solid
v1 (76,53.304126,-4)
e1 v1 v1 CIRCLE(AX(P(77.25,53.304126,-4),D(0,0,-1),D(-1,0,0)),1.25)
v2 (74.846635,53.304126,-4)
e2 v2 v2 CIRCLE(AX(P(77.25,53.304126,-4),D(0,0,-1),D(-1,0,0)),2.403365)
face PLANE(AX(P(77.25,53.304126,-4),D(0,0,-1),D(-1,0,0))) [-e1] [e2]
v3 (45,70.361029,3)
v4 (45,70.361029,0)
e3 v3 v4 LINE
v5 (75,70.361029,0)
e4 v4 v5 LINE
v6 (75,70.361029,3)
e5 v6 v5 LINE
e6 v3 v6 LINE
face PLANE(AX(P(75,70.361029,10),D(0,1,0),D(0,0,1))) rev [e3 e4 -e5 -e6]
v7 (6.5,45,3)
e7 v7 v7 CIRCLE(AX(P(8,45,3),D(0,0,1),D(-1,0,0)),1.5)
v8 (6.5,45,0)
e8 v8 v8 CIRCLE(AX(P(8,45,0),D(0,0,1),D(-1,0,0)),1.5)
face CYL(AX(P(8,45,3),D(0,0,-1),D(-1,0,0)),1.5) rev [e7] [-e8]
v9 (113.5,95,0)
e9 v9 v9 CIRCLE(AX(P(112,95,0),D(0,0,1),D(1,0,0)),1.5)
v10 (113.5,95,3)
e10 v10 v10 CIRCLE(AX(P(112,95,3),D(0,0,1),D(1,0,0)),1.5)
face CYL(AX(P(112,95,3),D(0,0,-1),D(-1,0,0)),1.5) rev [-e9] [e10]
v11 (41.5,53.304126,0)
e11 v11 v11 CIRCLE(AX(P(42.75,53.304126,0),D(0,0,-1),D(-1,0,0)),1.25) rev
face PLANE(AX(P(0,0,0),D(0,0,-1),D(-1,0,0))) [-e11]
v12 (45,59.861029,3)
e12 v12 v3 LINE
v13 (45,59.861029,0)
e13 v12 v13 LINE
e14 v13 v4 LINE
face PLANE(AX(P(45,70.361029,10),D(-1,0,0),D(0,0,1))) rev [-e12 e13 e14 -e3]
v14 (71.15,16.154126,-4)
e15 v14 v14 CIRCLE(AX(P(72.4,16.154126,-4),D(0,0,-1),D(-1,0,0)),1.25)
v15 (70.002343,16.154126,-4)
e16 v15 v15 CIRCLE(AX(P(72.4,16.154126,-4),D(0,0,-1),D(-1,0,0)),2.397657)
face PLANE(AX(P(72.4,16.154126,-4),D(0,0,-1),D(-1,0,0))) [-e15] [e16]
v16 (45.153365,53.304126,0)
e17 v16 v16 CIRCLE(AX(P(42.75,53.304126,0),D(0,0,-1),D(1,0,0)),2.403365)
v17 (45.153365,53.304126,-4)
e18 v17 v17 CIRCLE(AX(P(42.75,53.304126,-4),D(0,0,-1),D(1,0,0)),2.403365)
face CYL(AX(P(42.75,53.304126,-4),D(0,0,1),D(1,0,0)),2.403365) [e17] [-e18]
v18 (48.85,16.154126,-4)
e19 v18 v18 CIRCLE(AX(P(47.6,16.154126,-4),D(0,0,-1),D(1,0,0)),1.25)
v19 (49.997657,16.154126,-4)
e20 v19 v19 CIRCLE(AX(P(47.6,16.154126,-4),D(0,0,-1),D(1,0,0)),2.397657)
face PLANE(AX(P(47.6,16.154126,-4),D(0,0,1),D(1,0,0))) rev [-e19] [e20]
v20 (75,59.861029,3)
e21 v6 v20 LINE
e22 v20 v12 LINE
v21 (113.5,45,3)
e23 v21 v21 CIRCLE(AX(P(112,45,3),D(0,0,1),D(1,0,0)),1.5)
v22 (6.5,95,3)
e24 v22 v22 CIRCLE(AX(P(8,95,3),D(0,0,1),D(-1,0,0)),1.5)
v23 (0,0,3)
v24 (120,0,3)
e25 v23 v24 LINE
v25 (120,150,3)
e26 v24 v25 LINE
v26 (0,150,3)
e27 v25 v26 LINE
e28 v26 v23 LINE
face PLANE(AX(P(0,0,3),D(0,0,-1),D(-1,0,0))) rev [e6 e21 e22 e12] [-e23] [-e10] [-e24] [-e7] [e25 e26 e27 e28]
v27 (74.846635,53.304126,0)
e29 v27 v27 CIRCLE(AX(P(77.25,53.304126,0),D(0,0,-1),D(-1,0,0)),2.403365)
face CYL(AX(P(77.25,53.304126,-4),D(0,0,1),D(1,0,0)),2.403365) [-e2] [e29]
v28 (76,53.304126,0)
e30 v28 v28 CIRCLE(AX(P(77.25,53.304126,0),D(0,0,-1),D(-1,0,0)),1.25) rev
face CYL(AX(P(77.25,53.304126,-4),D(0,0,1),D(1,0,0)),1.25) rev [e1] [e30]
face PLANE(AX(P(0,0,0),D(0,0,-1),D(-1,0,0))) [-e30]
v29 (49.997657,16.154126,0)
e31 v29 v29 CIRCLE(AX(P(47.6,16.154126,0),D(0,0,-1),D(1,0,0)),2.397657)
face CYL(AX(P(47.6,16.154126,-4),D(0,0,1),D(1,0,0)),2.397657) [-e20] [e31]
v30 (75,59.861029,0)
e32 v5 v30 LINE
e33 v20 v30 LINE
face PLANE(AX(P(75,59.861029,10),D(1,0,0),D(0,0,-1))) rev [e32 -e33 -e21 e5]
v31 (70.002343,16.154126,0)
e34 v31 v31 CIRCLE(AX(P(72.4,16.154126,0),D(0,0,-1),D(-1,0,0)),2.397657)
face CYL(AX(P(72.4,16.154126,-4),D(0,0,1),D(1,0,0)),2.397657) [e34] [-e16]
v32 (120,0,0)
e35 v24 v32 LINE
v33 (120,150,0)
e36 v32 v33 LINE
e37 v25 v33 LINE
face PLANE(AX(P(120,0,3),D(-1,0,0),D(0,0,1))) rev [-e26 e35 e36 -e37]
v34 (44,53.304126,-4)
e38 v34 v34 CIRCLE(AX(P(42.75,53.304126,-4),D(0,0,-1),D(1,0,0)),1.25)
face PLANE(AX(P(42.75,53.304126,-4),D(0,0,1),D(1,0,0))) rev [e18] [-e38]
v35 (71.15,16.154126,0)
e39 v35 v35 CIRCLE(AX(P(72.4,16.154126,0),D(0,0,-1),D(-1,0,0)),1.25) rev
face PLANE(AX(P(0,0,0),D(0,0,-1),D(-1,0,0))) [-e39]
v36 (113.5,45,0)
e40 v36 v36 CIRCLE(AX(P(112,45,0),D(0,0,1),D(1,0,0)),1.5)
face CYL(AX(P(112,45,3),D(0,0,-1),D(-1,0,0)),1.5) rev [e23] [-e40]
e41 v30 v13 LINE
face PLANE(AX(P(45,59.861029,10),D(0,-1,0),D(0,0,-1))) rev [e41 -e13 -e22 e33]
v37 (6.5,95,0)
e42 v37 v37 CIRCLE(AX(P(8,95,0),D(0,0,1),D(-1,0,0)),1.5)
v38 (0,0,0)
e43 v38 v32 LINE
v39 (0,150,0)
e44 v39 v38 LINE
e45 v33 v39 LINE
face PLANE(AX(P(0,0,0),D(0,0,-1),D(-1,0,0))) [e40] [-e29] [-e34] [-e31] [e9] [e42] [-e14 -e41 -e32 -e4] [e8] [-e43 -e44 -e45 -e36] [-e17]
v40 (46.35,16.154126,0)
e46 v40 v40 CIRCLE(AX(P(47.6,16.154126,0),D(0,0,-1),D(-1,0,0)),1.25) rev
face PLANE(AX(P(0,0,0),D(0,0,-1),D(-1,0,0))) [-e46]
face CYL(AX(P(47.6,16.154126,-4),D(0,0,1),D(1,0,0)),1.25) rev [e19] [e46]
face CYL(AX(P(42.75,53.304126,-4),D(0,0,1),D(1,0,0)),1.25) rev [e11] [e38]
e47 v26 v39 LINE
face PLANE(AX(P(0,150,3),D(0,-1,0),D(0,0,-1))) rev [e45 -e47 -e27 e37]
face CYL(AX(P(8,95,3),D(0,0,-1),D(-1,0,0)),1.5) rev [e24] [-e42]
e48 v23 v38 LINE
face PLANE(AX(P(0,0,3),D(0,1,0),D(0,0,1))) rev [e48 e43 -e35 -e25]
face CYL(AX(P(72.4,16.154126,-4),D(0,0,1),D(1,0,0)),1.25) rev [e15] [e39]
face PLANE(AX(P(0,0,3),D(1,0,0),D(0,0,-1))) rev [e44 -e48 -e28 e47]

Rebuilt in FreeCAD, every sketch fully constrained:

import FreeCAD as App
import Part
import Sketcher
from FreeCAD import Vector
Q = App.Units.Quantity

doc = App.newDocument("Part")
body = doc.addObject("PartDesign::Body", "Body")

# Sketch on XY plane
sketch1 = body.newObject("Sketcher::SketchObject", "Sketch")
sketch1.AttachmentSupport = (doc.getObject("XY_Plane"), [""])
sketch1.MapMode = "FlatFace"
sketch1.addGeometry(Part.LineSegment(Vector(0, 150, 0), Vector(0, 0, 0)), False)
sketch1.addGeometry(Part.LineSegment(Vector(0, 0, 0), Vector(120, 0, 0)), False)
sketch1.addGeometry(Part.LineSegment(Vector(120, 0, 0), Vector(120, 150, 0)), False)
sketch1.addGeometry(Part.LineSegment(Vector(120, 150, 0), Vector(0, 150, 0)), False)
sketch1.addGeometry(Part.Circle(Vector(8, 45, 0), Vector(0, 0, 1), 1.5), False)
sketch1.addGeometry(Part.Circle(Vector(112, 45, 0), Vector(0, 0, 1), 1.5), False)
sketch1.addGeometry(Part.Circle(Vector(8, 95, 0), Vector(0, 0, 1), 1.5), False)
sketch1.addGeometry(Part.Circle(Vector(112, 95, 0), Vector(0, 0, 1), 1.5), False)
sketch1.addConstraint(Sketcher.Constraint("Coincident", 0, 2, 1, 1))
sketch1.addConstraint(Sketcher.Constraint("Coincident", 1, 2, 2, 1))
sketch1.addConstraint(Sketcher.Constraint("Coincident", 2, 2, 3, 1))
sketch1.addConstraint(Sketcher.Constraint("Coincident", 3, 2, 0, 1))
sketch1.addConstraint(Sketcher.Constraint("Vertical", 0))
sketch1.addConstraint(Sketcher.Constraint("Horizontal", 1))
sketch1.addConstraint(Sketcher.Constraint("Vertical", 2))
sketch1.addConstraint(Sketcher.Constraint("Horizontal", 3))
sketch1.addConstraint(Sketcher.Constraint("Coincident", 0, 2, -1, 1))
sketch1.addConstraint(Sketcher.Constraint("Equal", 4, 5))
sketch1.addConstraint(Sketcher.Constraint("Equal", 5, 6))
sketch1.addConstraint(Sketcher.Constraint("Equal", 6, 7))
sketch1.addConstraint(Sketcher.Constraint("Horizontal", 4, 3, 5, 3))
sketch1.addConstraint(Sketcher.Constraint("Horizontal", 6, 3, 7, 3))
sketch1.addConstraint(Sketcher.Constraint("Vertical", 4, 3, 6, 3))
sketch1.addConstraint(Sketcher.Constraint("Vertical", 5, 3, 7, 3))
sketch1.addConstraint(Sketcher.Constraint("Diameter", 4, Q("3 mm")))
sketch1.addConstraint(Sketcher.Constraint("DistanceX", 1, 1, 1, 2, Q("120 mm")))
sketch1.addConstraint(Sketcher.Constraint("DistanceY", 0, 2, 0, 1, Q("150 mm")))
sketch1.addConstraint(Sketcher.Constraint("DistanceX", -1, 1, 4, 3, Q("8 mm")))
sketch1.addConstraint(Sketcher.Constraint("DistanceY", -1, 1, 4, 3, Q("45 mm")))
sketch1.addConstraint(Sketcher.Constraint("DistanceX", -1, 1, 5, 3, Q("112 mm")))
sketch1.addConstraint(Sketcher.Constraint("DistanceY", -1, 1, 6, 3, Q("95 mm")))
pad1 = body.newObject("PartDesign::Pad", "Pad")
pad1.Profile = sketch1
pad1.Length = 3

# Sketch on XY plane
sketch2 = body.newObject("Sketcher::SketchObject", "Sketch001")
sketch2.AttachmentSupport = (doc.getObject("XY_Plane"), [""])
sketch2.MapMode = "FlatFace"
sketch2.addGeometry(Part.Circle(Vector(42.8, 53.3, 0), Vector(0, 0, 1), 2.4), False)
sketch2.addGeometry(Part.Circle(Vector(42.8, 53.3, 0), Vector(0, 0, 1), 1.2), False)
sketch2.addGeometry(Part.Circle(Vector(47.6, 16.2, 0), Vector(0, 0, 1), 2.4), False)
sketch2.addGeometry(Part.Circle(Vector(47.6, 16.2, 0), Vector(0, 0, 1), 1.2), False)
sketch2.addGeometry(Part.Circle(Vector(72.4, 16.2, 0), Vector(0, 0, 1), 2.4), False)
sketch2.addGeometry(Part.Circle(Vector(72.4, 16.2, 0), Vector(0, 0, 1), 1.2), False)
sketch2.addGeometry(Part.Circle(Vector(77.2, 53.3, 0), Vector(0, 0, 1), 2.4), False)
sketch2.addGeometry(Part.Circle(Vector(77.2, 53.3, 0), Vector(0, 0, 1), 1.2), False)
sketch2.addConstraint(Sketcher.Constraint("Coincident", 1, 3, 0, 3))
sketch2.addConstraint(Sketcher.Constraint("Coincident", 3, 3, 2, 3))
sketch2.addConstraint(Sketcher.Constraint("Coincident", 5, 3, 4, 3))
sketch2.addConstraint(Sketcher.Constraint("Coincident", 7, 3, 6, 3))
sketch2.addConstraint(Sketcher.Constraint("Equal", 1, 3))
sketch2.addConstraint(Sketcher.Constraint("Equal", 2, 4))
sketch2.addConstraint(Sketcher.Constraint("Equal", 3, 5))
sketch2.addConstraint(Sketcher.Constraint("Equal", 0, 6))
sketch2.addConstraint(Sketcher.Constraint("Equal", 5, 7))
sketch2.addConstraint(Sketcher.Constraint("Horizontal", 3, 3, 4, 3))
sketch2.addConstraint(Sketcher.Constraint("Horizontal", 1, 3, 6, 3))
sketch2.addConstraint(Sketcher.Constraint("Diameter", 1, Q("2.5 mm")))
sketch2.addConstraint(Sketcher.Constraint("DistanceX", -1, 1, 2, 3, Q("47.6 mm")))
sketch2.addConstraint(Sketcher.Constraint("DistanceX", -1, 1, 4, 3, Q("72.4 mm")))
sketch2.addConstraint(Sketcher.Constraint("DistanceX", 0, 3, 6, 3, Q("34.5 mm")))
sketch2.addConstraint(Sketcher.Constraint("Diameter", 0, Q("4.806731 mm")))
sketch2.addConstraint(Sketcher.Constraint("DistanceX", -1, 1, 0, 3, Q("42.75 mm")))
sketch2.addConstraint(Sketcher.Constraint("DistanceY", 2, 3, 0, 3, Q("37.15 mm")))
sketch2.addConstraint(Sketcher.Constraint("Diameter", 2, Q("4.795313 mm")))
sketch2.addConstraint(Sketcher.Constraint("DistanceY", -1, 1, 0, 3, Q("53.304126 mm")))
pad2 = body.newObject("PartDesign::Pad", "Pad001")
pad2.Profile = sketch2
pad2.Length = 4
pad2.Reversed = True

# Sketch on XY plane
sketch3 = body.newObject("Sketcher::SketchObject", "Sketch002")
sketch3.AttachmentSupport = (doc.getObject("XY_Plane"), [""])
sketch3.MapMode = "FlatFace"
sketch3.addGeometry(Part.LineSegment(Vector(75, 70, 0), Vector(75, 60, 0)), False)
sketch3.addGeometry(Part.LineSegment(Vector(75, 60, 0), Vector(45, 60, 0)), False)
sketch3.addGeometry(Part.LineSegment(Vector(45, 60, 0), Vector(45, 70, 0)), False)
sketch3.addGeometry(Part.LineSegment(Vector(45, 70, 0), Vector(75, 70, 0)), False)
sketch3.addConstraint(Sketcher.Constraint("Coincident", 0, 2, 1, 1))
sketch3.addConstraint(Sketcher.Constraint("Coincident", 1, 2, 2, 1))
sketch3.addConstraint(Sketcher.Constraint("Coincident", 2, 2, 3, 1))
sketch3.addConstraint(Sketcher.Constraint("Coincident", 3, 2, 0, 1))
sketch3.addConstraint(Sketcher.Constraint("Vertical", 0))
sketch3.addConstraint(Sketcher.Constraint("Horizontal", 1))
sketch3.addConstraint(Sketcher.Constraint("Vertical", 2))
sketch3.addConstraint(Sketcher.Constraint("Horizontal", 3))
sketch3.addConstraint(Sketcher.Constraint("DistanceX", 1, 2, 1, 1, Q("30 mm")))
sketch3.addConstraint(Sketcher.Constraint("DistanceY", 0, 2, 0, 1, Q("10.5 mm")))
sketch3.addConstraint(Sketcher.Constraint("DistanceX", -1, 1, 0, 2, Q("75 mm")))
sketch3.addConstraint(Sketcher.Constraint("DistanceY", -1, 1, 0, 2, Q("59.861029 mm")))
pocket1 = body.newObject("PartDesign::Pocket", "Pocket")
pocket1.Profile = sketch3
pocket1.Length = 10
pocket1.Reversed = True

doc.recompute()
